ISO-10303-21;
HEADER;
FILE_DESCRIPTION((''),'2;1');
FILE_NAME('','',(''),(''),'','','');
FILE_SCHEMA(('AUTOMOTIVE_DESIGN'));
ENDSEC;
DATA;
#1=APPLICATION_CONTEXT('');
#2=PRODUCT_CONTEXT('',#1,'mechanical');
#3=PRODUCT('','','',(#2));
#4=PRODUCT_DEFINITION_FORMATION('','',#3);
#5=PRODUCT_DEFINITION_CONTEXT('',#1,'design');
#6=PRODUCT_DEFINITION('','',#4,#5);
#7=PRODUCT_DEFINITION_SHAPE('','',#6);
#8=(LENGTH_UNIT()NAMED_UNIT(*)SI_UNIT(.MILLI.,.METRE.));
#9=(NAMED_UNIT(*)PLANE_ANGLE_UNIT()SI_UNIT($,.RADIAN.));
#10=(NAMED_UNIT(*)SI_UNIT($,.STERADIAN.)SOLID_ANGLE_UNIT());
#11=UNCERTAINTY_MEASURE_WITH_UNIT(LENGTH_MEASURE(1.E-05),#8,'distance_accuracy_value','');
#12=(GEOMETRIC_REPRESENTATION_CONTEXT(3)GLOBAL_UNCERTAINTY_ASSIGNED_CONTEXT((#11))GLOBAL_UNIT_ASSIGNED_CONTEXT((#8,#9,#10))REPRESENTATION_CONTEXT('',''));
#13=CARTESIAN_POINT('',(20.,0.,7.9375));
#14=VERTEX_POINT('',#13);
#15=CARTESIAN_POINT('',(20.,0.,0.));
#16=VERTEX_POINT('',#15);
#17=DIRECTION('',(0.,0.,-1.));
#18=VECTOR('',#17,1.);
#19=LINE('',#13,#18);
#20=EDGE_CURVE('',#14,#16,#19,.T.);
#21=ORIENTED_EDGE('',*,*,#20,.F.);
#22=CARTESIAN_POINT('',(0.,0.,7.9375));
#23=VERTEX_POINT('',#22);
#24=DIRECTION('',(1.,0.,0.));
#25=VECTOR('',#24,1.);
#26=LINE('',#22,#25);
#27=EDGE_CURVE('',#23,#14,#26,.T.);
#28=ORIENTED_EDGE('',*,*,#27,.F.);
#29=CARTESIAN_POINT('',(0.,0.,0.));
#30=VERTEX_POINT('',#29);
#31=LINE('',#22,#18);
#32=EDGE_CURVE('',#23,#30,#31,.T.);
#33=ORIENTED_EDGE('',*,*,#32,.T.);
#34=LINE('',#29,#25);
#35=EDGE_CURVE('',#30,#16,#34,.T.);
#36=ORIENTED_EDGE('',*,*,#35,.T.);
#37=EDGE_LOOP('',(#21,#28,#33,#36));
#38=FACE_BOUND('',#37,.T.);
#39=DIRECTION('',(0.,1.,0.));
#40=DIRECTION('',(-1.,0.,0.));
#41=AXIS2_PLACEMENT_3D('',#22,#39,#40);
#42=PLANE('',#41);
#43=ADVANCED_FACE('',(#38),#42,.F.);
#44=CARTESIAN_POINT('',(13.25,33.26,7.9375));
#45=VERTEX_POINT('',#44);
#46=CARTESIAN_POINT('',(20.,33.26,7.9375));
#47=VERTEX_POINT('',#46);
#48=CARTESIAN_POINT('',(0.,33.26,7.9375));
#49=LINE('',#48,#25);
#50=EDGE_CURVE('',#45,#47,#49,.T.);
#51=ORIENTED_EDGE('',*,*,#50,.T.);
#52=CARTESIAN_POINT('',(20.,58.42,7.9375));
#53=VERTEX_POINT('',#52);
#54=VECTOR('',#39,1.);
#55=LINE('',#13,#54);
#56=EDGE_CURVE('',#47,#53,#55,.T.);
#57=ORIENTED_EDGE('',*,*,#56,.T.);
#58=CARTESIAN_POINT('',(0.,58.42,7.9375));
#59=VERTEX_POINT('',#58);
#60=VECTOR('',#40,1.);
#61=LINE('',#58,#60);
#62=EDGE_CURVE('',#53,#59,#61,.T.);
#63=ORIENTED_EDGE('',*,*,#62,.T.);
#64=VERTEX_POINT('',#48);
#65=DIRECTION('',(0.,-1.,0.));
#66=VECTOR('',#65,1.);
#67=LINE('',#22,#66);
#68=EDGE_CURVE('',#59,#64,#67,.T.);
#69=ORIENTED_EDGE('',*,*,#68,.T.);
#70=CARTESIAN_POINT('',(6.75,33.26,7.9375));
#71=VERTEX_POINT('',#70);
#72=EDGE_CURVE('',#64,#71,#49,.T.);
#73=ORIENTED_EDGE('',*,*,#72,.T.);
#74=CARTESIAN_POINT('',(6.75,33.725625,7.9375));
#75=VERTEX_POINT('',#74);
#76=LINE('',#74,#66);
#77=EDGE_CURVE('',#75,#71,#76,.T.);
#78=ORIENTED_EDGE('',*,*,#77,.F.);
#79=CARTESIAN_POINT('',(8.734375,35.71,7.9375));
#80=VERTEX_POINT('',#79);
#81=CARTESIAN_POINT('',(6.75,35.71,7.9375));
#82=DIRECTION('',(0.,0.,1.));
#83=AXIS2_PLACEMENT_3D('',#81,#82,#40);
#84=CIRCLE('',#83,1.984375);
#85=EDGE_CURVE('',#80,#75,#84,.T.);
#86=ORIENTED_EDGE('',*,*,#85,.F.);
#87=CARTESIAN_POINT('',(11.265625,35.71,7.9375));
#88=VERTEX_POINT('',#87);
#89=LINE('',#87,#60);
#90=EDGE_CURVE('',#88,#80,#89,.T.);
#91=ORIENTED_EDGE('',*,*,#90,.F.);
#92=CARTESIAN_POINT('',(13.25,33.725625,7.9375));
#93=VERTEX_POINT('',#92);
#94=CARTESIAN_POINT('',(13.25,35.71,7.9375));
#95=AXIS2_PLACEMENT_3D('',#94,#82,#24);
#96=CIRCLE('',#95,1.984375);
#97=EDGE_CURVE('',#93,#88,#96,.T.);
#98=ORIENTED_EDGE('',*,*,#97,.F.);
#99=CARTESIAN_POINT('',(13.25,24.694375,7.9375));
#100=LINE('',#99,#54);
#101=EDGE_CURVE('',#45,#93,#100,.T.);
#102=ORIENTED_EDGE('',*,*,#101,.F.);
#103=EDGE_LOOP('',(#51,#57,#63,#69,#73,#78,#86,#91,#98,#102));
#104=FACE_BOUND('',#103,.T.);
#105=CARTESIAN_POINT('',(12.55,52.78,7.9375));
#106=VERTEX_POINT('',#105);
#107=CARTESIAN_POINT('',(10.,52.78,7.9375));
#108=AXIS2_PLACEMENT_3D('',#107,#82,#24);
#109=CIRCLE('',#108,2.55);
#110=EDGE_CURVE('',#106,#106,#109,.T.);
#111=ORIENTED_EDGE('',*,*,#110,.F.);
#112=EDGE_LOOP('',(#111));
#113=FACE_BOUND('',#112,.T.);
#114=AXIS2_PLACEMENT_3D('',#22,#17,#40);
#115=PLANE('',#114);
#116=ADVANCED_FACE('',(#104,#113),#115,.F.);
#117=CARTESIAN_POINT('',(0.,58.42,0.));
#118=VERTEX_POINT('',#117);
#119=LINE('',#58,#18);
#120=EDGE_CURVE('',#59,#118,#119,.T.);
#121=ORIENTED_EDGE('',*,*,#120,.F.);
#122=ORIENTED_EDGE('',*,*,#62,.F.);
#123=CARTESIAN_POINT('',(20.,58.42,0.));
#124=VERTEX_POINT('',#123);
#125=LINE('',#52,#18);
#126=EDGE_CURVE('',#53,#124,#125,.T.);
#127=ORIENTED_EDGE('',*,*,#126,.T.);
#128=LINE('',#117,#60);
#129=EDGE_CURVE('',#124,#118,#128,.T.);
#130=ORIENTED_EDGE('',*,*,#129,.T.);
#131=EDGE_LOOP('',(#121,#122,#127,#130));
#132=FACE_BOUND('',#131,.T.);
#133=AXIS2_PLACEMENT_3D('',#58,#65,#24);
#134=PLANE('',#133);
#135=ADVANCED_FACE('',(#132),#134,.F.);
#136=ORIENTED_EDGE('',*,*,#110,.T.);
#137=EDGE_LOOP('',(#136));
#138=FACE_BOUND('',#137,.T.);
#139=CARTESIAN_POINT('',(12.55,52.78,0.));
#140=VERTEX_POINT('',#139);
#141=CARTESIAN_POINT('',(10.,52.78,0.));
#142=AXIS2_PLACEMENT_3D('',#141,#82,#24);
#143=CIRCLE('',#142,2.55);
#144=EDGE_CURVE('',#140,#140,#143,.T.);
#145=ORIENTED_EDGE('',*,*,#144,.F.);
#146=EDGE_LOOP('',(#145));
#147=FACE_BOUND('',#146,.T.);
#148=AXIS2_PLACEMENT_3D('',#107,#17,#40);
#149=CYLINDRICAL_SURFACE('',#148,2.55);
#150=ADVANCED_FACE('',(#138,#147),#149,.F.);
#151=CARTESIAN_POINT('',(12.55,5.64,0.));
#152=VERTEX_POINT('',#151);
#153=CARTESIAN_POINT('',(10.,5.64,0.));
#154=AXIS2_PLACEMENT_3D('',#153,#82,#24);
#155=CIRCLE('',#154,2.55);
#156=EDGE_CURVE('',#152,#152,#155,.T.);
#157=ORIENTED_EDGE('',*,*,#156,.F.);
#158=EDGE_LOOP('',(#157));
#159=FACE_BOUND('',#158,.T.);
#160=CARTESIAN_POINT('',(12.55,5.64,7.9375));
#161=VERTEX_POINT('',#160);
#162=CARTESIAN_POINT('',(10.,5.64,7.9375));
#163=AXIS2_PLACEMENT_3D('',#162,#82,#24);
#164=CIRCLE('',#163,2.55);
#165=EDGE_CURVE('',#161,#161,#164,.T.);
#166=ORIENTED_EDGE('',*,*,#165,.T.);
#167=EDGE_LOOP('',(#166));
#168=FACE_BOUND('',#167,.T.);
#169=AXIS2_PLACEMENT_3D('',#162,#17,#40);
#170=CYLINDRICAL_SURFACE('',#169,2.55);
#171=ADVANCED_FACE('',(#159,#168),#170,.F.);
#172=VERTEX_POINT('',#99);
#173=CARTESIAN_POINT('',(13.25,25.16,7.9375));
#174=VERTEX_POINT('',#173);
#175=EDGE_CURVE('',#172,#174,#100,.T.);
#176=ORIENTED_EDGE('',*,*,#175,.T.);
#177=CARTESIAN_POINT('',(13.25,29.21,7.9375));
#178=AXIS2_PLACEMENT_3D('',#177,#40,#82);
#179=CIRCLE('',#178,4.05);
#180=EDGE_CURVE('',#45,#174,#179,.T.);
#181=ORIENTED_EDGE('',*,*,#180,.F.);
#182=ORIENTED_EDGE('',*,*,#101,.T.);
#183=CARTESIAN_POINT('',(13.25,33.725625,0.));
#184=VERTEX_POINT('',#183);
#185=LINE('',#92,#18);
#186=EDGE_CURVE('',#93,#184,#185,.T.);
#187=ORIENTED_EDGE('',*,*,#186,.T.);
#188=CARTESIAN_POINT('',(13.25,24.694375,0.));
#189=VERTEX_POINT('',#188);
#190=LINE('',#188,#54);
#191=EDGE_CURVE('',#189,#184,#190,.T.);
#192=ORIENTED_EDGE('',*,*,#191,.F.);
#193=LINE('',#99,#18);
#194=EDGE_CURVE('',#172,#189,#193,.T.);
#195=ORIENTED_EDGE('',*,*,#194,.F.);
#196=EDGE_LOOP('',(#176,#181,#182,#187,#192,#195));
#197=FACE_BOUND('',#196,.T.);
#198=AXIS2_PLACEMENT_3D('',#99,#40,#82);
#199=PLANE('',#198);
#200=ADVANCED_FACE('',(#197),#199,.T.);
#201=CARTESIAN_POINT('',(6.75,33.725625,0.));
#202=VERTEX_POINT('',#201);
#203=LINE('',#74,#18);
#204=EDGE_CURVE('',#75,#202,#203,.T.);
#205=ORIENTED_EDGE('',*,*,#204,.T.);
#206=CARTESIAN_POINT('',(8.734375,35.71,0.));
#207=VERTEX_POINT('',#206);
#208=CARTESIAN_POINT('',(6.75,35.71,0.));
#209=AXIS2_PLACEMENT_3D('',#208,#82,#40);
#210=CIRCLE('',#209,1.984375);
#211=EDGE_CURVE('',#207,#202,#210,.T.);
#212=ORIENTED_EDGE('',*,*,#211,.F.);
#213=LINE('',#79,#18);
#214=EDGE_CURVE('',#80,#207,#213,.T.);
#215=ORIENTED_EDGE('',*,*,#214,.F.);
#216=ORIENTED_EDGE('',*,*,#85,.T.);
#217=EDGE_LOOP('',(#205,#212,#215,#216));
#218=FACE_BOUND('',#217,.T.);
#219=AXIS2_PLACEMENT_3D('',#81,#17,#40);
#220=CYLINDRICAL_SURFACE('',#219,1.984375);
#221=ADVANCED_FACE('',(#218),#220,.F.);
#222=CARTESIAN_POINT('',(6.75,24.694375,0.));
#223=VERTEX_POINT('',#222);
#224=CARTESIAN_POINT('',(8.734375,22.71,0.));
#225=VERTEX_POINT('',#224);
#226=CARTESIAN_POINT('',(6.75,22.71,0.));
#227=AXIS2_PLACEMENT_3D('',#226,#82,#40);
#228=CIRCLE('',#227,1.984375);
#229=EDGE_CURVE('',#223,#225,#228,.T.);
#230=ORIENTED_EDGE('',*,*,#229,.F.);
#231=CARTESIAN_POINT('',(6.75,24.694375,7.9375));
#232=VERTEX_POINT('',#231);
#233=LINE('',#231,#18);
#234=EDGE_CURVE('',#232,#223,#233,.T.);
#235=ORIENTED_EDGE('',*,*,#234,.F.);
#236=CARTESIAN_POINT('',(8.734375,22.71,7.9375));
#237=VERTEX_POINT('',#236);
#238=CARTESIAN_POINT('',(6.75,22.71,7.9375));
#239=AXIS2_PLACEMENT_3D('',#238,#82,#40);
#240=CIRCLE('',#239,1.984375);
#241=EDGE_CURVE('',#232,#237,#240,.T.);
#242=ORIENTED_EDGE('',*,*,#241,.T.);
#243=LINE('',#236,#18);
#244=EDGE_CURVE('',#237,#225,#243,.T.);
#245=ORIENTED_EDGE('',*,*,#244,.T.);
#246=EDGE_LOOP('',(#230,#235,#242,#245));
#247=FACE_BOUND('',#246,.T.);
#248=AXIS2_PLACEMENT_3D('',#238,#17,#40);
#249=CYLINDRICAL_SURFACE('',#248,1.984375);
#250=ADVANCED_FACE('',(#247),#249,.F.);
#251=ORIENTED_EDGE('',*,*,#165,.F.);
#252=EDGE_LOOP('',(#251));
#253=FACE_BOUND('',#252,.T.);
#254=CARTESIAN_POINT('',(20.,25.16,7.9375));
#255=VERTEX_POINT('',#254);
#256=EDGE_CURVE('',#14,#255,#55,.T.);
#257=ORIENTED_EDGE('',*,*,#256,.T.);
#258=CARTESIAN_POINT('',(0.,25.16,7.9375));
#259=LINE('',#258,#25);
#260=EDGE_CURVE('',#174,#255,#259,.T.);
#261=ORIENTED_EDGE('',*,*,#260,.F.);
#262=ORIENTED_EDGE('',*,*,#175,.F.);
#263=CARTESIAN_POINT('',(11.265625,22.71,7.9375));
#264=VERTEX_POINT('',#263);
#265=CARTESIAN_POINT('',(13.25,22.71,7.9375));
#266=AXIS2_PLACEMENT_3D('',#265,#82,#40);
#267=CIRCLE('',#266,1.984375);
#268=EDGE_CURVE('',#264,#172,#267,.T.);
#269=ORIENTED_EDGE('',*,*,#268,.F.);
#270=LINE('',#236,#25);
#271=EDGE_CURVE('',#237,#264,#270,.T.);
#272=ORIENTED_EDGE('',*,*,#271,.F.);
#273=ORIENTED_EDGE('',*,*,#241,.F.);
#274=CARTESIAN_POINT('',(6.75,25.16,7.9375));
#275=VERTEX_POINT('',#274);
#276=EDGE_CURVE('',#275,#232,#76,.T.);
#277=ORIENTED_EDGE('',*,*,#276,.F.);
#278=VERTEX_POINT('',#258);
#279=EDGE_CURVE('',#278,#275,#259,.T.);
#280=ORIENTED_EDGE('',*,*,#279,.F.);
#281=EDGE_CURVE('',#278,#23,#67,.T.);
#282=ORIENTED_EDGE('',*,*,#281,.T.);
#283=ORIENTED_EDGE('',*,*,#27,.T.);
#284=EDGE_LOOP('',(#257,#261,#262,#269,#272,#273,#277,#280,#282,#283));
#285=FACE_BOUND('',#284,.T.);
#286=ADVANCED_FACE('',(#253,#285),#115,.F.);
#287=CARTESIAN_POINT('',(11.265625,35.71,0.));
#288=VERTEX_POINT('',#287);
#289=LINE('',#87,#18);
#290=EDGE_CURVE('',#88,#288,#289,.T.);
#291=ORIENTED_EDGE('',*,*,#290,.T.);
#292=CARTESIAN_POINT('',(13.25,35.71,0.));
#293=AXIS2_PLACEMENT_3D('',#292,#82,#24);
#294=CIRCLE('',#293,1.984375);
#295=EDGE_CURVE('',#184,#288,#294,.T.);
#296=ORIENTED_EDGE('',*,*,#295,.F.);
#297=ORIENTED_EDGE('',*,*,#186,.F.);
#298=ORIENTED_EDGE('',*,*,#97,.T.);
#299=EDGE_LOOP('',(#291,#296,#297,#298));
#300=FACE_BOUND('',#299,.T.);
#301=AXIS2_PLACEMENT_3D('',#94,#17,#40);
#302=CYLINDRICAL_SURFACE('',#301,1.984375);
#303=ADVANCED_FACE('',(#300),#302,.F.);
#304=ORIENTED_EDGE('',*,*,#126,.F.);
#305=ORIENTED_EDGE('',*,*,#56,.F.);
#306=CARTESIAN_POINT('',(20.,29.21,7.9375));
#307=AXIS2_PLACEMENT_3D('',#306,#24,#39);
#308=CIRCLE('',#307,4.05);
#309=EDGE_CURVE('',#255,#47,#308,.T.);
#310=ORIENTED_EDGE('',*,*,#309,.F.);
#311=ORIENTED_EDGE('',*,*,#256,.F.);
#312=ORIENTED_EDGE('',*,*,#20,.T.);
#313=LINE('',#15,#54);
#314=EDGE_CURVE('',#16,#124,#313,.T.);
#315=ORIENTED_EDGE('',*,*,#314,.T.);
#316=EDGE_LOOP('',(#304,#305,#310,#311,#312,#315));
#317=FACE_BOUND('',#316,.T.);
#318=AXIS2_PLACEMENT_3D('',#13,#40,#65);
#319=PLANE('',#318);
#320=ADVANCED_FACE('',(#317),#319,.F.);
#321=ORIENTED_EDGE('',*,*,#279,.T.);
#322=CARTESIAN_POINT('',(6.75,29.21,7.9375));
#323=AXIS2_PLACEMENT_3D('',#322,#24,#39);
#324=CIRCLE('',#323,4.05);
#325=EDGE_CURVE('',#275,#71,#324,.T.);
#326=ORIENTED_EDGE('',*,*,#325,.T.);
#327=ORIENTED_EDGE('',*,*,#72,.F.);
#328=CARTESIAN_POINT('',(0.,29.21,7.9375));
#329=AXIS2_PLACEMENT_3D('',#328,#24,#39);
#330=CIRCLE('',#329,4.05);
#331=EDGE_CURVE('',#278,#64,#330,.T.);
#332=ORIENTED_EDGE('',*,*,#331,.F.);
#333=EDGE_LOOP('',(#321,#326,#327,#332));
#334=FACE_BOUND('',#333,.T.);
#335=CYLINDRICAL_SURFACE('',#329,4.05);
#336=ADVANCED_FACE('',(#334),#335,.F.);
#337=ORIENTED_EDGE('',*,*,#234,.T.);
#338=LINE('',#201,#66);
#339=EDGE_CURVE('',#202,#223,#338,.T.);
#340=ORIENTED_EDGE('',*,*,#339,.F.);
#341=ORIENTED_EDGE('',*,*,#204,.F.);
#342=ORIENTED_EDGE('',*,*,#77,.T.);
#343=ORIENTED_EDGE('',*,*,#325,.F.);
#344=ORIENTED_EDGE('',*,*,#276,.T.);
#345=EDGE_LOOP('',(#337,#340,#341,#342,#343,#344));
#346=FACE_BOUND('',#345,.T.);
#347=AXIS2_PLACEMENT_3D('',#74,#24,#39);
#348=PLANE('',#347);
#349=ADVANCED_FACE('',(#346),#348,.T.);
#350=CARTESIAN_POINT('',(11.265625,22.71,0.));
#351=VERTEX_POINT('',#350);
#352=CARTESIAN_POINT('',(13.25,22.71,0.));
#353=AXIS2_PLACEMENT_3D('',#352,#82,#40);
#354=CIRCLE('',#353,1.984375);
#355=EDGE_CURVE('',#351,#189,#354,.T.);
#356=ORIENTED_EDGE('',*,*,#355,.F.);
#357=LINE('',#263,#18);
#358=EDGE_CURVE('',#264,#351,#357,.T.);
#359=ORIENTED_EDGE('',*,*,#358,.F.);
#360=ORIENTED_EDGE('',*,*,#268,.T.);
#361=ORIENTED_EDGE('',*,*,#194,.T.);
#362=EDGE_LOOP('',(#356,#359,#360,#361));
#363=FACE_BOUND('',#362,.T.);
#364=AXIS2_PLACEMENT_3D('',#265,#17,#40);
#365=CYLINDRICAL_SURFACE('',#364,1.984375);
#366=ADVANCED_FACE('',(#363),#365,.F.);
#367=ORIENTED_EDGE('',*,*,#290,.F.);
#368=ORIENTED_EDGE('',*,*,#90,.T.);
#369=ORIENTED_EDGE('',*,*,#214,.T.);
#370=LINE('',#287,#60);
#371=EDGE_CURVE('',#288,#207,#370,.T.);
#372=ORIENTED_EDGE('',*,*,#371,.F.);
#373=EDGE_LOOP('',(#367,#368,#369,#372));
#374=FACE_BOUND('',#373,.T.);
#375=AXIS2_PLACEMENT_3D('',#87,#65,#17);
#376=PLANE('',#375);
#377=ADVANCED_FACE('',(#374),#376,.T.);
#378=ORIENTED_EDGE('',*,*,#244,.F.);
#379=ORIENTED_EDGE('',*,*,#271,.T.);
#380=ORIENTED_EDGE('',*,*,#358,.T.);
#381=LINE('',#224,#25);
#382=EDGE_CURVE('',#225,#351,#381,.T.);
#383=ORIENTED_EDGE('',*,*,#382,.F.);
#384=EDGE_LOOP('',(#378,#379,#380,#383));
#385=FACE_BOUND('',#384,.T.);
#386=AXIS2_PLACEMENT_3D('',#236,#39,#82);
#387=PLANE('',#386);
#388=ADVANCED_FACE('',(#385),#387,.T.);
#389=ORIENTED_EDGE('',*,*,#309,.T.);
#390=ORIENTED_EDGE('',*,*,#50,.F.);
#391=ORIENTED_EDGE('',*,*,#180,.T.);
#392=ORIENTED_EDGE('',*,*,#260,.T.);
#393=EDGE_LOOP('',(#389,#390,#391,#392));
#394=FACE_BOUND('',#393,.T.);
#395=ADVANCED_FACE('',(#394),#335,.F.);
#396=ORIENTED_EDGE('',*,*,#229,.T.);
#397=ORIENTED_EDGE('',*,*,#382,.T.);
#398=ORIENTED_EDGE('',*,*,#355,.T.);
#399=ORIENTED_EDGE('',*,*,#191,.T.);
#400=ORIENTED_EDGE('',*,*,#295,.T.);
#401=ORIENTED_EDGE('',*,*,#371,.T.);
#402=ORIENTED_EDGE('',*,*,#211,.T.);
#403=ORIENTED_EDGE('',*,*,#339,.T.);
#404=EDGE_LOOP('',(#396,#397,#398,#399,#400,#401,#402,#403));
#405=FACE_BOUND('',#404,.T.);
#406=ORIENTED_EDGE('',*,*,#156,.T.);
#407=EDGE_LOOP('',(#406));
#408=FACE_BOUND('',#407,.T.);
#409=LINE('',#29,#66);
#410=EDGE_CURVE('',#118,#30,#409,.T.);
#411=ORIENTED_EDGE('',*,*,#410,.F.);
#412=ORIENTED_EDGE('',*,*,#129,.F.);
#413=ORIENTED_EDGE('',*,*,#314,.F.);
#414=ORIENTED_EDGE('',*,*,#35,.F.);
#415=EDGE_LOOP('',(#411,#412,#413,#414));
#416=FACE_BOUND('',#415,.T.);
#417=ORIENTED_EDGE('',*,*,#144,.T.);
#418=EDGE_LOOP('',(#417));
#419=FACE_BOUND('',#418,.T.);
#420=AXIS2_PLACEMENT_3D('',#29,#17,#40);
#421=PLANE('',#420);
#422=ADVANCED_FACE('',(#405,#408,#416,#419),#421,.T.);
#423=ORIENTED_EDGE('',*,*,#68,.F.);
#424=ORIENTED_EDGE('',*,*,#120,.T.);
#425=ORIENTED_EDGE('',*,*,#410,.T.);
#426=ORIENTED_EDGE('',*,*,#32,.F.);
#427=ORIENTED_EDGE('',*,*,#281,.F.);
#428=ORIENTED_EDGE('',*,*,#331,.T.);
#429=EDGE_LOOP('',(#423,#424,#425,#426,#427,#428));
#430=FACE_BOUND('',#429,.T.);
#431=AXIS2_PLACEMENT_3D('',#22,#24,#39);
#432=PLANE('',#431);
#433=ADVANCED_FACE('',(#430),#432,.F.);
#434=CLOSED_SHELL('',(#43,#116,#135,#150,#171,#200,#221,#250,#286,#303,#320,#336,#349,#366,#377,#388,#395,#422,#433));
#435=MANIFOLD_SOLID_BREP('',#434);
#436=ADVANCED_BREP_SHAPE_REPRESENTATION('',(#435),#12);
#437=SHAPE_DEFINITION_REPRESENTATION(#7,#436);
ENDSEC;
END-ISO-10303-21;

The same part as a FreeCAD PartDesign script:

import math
import FreeCAD as App
import Part
import Sketcher
from FreeCAD import Vector

doc = App.newDocument("Part")
body = doc.addObject("PartDesign::Body", "Body")

# Sketch on XY plane
sketch1 = body.newObject("Sketcher::SketchObject", "Sketch")
sketch1.AttachmentSupport = (doc.getObject("XY_Plane"), [""])
sketch1.MapMode = "FlatFace"
sketch1.addGeometry(Part.LineSegment(Vector(0, 58.42, 0), Vector(0, 0, 0)), False)
sketch1.addGeometry(Part.LineSegment(Vector(0, 0, 0), Vector(20, 0, 0)), False)
sketch1.addGeometry(Part.LineSegment(Vector(20, 0, 0), Vector(20, 58.42, 0)), False)
sketch1.addGeometry(Part.LineSegment(Vector(20, 58.42, 0), Vector(0, 58.42, 0)), False)
sketch1.addGeometry(Part.Circle(Vector(10, 5.64, 0), Vector(0, 0, 1), 2.55), False)
sketch1.addGeometry(Part.LineSegment(Vector(13.25, 33.725625, 0), Vector(13.25, 24.694375, 0)), False)
sketch1.addGeometry(Part.ArcOfCircle(Part.Circle(Vector(13.25, 22.71, 0), Vector(0, 0, 1), 1.984375), math.radians(180), math.radians(450)), False)
sketch1.addGeometry(Part.LineSegment(Vector(11.265625, 22.71, 0), Vector(8.734375, 22.71, 0)), False)
sketch1.addGeometry(Part.ArcOfCircle(Part.Circle(Vector(6.75, 22.71, 0), Vector(0, 0, 1), 1.984375), math.radians(90), math.radians(360)), False)
sketch1.addGeometry(Part.LineSegment(Vector(6.75, 24.694375, 0), Vector(6.75, 33.725625, 0)), False)
sketch1.addGeometry(Part.ArcOfCircle(Part.Circle(Vector(6.75, 35.71, 0), Vector(0, 0, 1), 1.984375), math.radians(0), math.radians(270)), False)
sketch1.addGeometry(Part.LineSegment(Vector(8.734375, 35.71, 0), Vector(11.265625, 35.71, 0)), False)
sketch1.addGeometry(Part.ArcOfCircle(Part.Circle(Vector(13.25, 35.71, 0), Vector(0, 0, 1), 1.984375), math.radians(-90), math.radians(180)), False)
sketch1.addGeometry(Part.Circle(Vector(10, 52.78, 0), Vector(0, 0, 1), 2.55), False)
sketch1.addConstraint(Sketcher.Constraint("Coincident", 0, 2, 1, 1))
sketch1.addConstraint(Sketcher.Constraint("Coincident", 1, 2, 2, 1))
sketch1.addConstraint(Sketcher.Constraint("Coincident", 2, 2, 3, 1))
sketch1.addConstraint(Sketcher.Constraint("Coincident", 3, 2, 0, 1))
sketch1.addConstraint(Sketcher.Constraint("Coincident", 5, 2, 6, 2))
sketch1.addConstraint(Sketcher.Constraint("Coincident", 6, 1, 7, 1))
sketch1.addConstraint(Sketcher.Constraint("Coincident", 7, 2, 8, 2))
sketch1.addConstraint(Sketcher.Constraint("Coincident", 8, 1, 9, 1))
sketch1.addConstraint(Sketcher.Constraint("Coincident", 9, 2, 10, 2))
sketch1.addConstraint(Sketcher.Constraint("Coincident", 10, 1, 11, 1))
sketch1.addConstraint(Sketcher.Constraint("Coincident", 11, 2, 12, 2))
sketch1.addConstraint(Sketcher.Constraint("Coincident", 12, 1, 5, 1))
sketch1.addConstraint(Sketcher.Constraint("Vertical", 0))
sketch1.addConstraint(Sketcher.Constraint("Horizontal", 1))
sketch1.addConstraint(Sketcher.Constraint("Vertical", 2))
sketch1.addConstraint(Sketcher.Constraint("Horizontal", 3))
sketch1.addConstraint(Sketcher.Constraint("Vertical", 5))
sketch1.addConstraint(Sketcher.Constraint("Horizontal", 7))
sketch1.addConstraint(Sketcher.Constraint("Vertical", 9))
sketch1.addConstraint(Sketcher.Constraint("Horizontal", 11))
sketch1.addConstraint(Sketcher.Constraint("Coincident", 0, 2, -1, 1))
sketch1.addConstraint(Sketcher.Constraint("Equal", 6, 8))
sketch1.addConstraint(Sketcher.Constraint("Equal", 8, 10))
sketch1.addConstraint(Sketcher.Constraint("Equal", 10, 12))
sketch1.addConstraint(Sketcher.Constraint("Equal", 4, 13))
sketch1.addConstraint(Sketcher.Constraint("Horizontal", 6, 3, 8, 3))
sketch1.addConstraint(Sketcher.Constraint("Horizontal", 10, 3, 12, 3))
sketch1.addConstraint(Sketcher.Constraint("Horizontal", 8, 3, 6, 1))
sketch1.addConstraint(Sketcher.Constraint("Horizontal", 12, 3, 10, 1))
sketch1.addConstraint(Sketcher.Constraint("Vertical", 8, 3, 10, 3))
sketch1.addConstraint(Sketcher.Constraint("Vertical", 6, 3, 12, 3))
sketch1.addConstraint(Sketcher.Constraint("Vertical", 4, 3, 13, 3))
sketch1.addConstraint(Sketcher.Constraint("Vertical", 12, 3, 5, 2))
sketch1.addConstraint(Sketcher.Constraint("Vertical", 10, 3, 8, 1))
sketch1.addConstraint(Sketcher.Constraint("Diameter", 4, 5.1))
sketch1.addConstraint(Sketcher.Constraint("DistanceX", 1, 1, 1, 2, 20.0))
sketch1.addConstraint(Sketcher.Constraint("DistanceX", -1, 1, 4, 3, 10.0))
sketch1.addConstraint(Sketcher.Constraint("DistanceY", 8, 3, 10, 3, 13.0))
sketch1.addConstraint(Sketcher.Constraint("DistanceY", 0, 2, 0, 1, 58.42))
sketch1.addConstraint(Sketcher.Constraint("DistanceX", 8, 3, 6, 3, 6.5))
sketch1.addConstraint(Sketcher.Constraint("DistanceY", -1, 1, 4, 3, 5.64))
sketch1.addConstraint(Sketcher.Constraint("DistanceX", -1, 1, 6, 3, 13.25))
sketch1.addConstraint(Sketcher.Constraint("DistanceY", -1, 1, 6, 3, 22.71))
sketch1.addConstraint(Sketcher.Constraint("DistanceY", -1, 1, 13, 3, 52.78))
sketch1.addConstraint(Sketcher.Constraint("Radius", 6, 1.984375))
pad1 = body.newObject("PartDesign::Pad", "Pad")
pad1.Profile = sketch1
pad1.Length = 7.9375

# Sketch on YZ plane
sketch2 = body.newObject("Sketcher::SketchObject", "Sketch001")
sketch2.AttachmentSupport = (doc.getObject("YZ_Plane"), [""])
sketch2.MapMode = "FlatFace"
sketch2.AttachmentOffset = App.Placement(Vector(0, 0, 20), App.Rotation())
sketch2.addGeometry(Part.LineSegment(Vector(33.26, 7.9375, 0), Vector(25.16, 7.9375, 0)), False)
sketch2.addGeometry(Part.ArcOfCircle(Part.Circle(Vector(29.21, 7.9375, 0), Vector(0, 0, 1), 4.05), math.radians(180), math.radians(360)), False)
sketch2.addConstraint(Sketcher.Constraint("Coincident", 0, 1, 1, 2))
sketch2.addConstraint(Sketcher.Constraint("Coincident", 1, 1, 0, 2))
sketch2.addConstraint(Sketcher.Constraint("Horizontal", 0))
sketch2.addConstraint(Sketcher.Constraint("Horizontal", 1, 3, 0, 1))
sketch2.addConstraint(Sketcher.Constraint("Radius", 1, 4.05))
sketch2.addConstraint(Sketcher.Constraint("DistanceX", -1, 1, 1, 3, 29.21))
sketch2.addConstraint(Sketcher.Constraint("DistanceY", -1, 1, 1, 3, 7.9375))
pocket1 = body.newObject("PartDesign::Pocket", "Pocket")
pocket1.Profile = sketch2
pocket1.Type = "ThroughAll"

doc.recompute()
